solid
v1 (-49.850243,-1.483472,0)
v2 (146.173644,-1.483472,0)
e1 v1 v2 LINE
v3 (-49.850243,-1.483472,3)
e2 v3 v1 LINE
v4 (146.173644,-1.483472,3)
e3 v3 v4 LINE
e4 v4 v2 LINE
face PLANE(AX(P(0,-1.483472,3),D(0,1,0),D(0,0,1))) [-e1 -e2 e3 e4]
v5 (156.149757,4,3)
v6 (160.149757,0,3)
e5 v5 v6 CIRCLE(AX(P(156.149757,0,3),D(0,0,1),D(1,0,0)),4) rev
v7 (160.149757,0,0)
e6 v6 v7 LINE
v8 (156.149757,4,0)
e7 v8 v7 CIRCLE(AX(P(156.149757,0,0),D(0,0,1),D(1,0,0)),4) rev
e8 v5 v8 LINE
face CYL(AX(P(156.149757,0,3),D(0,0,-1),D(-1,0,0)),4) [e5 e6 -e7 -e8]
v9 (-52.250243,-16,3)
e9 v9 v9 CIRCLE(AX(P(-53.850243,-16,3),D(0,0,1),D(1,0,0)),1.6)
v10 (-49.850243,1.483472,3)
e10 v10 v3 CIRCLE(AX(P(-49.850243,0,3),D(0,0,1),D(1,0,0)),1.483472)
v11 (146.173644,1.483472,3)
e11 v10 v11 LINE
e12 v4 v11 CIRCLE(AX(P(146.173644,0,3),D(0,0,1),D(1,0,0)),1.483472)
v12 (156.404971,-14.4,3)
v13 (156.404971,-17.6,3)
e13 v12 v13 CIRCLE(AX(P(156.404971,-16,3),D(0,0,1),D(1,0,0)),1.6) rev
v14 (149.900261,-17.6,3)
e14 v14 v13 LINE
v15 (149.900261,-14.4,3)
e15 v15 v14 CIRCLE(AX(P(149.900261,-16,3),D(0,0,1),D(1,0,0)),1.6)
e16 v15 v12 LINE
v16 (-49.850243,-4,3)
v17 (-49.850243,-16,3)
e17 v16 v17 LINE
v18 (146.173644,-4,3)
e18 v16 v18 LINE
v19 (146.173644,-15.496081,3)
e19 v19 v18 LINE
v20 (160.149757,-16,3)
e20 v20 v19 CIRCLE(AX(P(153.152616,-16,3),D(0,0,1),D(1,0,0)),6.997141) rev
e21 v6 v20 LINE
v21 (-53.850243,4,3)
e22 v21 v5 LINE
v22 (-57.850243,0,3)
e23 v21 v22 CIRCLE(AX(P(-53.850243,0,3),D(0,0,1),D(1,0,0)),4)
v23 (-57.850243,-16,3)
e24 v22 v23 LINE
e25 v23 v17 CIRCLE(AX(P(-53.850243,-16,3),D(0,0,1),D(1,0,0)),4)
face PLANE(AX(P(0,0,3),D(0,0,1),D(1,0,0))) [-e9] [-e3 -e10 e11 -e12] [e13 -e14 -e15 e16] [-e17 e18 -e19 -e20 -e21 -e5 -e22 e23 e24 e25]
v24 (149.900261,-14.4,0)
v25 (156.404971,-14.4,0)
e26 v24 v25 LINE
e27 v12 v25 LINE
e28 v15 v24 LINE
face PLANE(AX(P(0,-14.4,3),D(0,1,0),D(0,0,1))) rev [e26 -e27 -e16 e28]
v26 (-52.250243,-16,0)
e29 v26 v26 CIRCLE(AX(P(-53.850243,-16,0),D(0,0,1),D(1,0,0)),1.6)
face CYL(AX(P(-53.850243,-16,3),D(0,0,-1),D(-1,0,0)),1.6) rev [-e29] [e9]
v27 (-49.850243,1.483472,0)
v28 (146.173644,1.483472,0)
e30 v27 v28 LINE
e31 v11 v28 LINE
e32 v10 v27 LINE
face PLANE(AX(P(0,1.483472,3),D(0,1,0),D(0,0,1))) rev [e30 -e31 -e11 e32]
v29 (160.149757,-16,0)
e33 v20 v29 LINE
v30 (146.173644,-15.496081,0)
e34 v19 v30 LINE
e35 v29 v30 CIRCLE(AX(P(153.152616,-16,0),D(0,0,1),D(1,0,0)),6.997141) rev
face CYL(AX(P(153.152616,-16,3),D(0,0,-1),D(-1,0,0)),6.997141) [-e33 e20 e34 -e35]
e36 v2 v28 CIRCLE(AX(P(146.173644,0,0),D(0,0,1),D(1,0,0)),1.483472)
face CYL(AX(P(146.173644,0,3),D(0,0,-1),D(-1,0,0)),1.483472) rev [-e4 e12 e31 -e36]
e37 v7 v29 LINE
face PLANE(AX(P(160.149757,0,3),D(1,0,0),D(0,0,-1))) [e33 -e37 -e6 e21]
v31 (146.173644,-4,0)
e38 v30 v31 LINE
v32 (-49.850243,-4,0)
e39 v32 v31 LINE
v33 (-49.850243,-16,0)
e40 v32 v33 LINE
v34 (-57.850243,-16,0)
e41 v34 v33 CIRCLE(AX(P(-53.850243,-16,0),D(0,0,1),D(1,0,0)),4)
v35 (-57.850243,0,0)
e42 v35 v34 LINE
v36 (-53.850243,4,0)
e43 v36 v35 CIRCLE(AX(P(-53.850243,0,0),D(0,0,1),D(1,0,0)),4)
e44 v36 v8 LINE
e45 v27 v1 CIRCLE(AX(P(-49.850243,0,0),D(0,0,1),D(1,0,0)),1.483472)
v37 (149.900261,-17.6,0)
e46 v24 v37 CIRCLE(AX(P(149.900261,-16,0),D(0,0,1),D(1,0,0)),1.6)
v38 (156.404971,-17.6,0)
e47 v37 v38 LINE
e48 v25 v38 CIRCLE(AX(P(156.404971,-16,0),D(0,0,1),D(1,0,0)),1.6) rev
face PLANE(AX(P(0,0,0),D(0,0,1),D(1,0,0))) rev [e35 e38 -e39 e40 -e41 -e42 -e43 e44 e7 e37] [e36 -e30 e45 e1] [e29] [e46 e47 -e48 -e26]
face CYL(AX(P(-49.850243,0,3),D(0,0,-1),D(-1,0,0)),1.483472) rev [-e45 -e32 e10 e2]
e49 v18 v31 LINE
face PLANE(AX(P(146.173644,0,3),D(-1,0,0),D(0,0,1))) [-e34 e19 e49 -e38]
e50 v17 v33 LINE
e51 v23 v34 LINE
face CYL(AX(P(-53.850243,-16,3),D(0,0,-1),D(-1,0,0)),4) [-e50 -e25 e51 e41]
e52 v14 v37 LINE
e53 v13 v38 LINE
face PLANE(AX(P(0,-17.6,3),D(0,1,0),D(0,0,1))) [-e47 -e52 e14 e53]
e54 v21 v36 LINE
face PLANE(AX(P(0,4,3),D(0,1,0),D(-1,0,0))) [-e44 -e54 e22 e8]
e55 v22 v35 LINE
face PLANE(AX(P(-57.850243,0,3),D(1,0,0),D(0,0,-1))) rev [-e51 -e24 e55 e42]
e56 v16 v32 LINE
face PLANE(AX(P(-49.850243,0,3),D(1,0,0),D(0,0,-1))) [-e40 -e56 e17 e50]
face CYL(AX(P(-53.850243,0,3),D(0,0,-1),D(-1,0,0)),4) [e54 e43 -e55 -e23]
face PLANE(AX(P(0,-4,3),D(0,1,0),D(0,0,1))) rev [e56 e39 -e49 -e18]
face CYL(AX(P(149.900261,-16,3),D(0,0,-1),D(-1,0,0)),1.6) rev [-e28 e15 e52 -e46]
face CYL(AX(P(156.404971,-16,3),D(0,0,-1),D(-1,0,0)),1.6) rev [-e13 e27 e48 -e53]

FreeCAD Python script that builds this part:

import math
import FreeCAD as App
import Part
import Sketcher
Q = App.Units.Quantity

doc = App.newDocument("Part")
body = doc.addObject("PartDesign::Body", "Body")

sketch1 = doc.addObject("Sketcher::SketchObject", "Sketch")
body.addObject(sketch1)
sketch1.AttachmentSupport = (doc.XY_Plane, [""])
sketch1.MapMode = "FlatFace"
sketch1.addGeometry([
    Part.LineSegment(App.Vector(156.1, 4, 0), App.Vector(-53.9, 4, 0)),
    Part.ArcOfCircle(Part.Circle(App.Vector(-53.9, 0, 0), App.Vector(0, 0, 1), 4), math.radians(90), math.radians(180)),
    Part.LineSegment(App.Vector(-57.9, 0, 0), App.Vector(-57.9, -16, 0)),
    Part.ArcOfCircle(Part.Circle(App.Vector(-53.9, -16, 0), App.Vector(0, 0, 1), 4), math.radians(180), math.radians(360)),
    Part.LineSegment(App.Vector(-49.9, -16, 0), App.Vector(-49.9, -4, 0)),
    Part.LineSegment(App.Vector(-49.9, -4, 0), App.Vector(146.2, -4, 0)),
    Part.LineSegment(App.Vector(146.2, -4, 0), App.Vector(146.2, -15.5, 0)),
    Part.ArcOfCircle(Part.Circle(App.Vector(153.2, -16, 0), App.Vector(0, 0, 1), 7), math.radians(176), math.radians(360)),
    Part.LineSegment(App.Vector(160.1, -16, 0), App.Vector(160.1, 0, 0)),
    Part.ArcOfCircle(Part.Circle(App.Vector(156.1, 0, 0), App.Vector(0, 0, 1), 4), math.radians(0), math.radians(90)),
    Part.LineSegment(App.Vector(149.9, -14.4, 0), App.Vector(156.4, -14.4, 0)),
    Part.ArcOfCircle(Part.Circle(App.Vector(156.4, -16, 0), App.Vector(0, 0, 1), 1.6), math.radians(-90), math.radians(90)),
    Part.LineSegment(App.Vector(156.4, -17.6, 0), App.Vector(149.9, -17.6, 0)),
    Part.ArcOfCircle(Part.Circle(App.Vector(149.9, -16, 0), App.Vector(0, 0, 1), 1.6), math.radians(90), math.radians(270)),
    Part.Circle(App.Vector(-53.9, -16, 0), App.Vector(0, 0, 1), 1.6),
    Part.LineSegment(App.Vector(-49.9, 1.5, 0), App.Vector(146.2, 1.5, 0)),
    Part.ArcOfCircle(Part.Circle(App.Vector(146.2, 0, 0), App.Vector(0, 0, 1), 1.5), math.radians(-90), math.radians(90)),
    Part.LineSegment(App.Vector(146.2, -1.5, 0), App.Vector(-49.9, -1.5, 0)),
    Part.ArcOfCircle(Part.Circle(App.Vector(-49.9, 0, 0), App.Vector(0, 0, 1), 1.5), math.radians(90), math.radians(270)),
], False)
sketch1.addConstraint([
    Sketcher.Constraint("Tangent", 0, 2, 1, 1),
    Sketcher.Constraint("Tangent", 1, 2, 2, 1),
    Sketcher.Constraint("Tangent", 2, 2, 3, 1),
    Sketcher.Constraint("Tangent", 3, 2, 4, 1),
    Sketcher.Constraint("Coincident", 4, 2, 5, 1),
    Sketcher.Constraint("Coincident", 5, 2, 6, 1),
    Sketcher.Constraint("Coincident", 6, 2, 7, 1),
    Sketcher.Constraint("Tangent", 7, 2, 8, 1),
    Sketcher.Constraint("Tangent", 8, 2, 9, 1),
    Sketcher.Constraint("Tangent", 9, 2, 0, 1),
    Sketcher.Constraint("Tangent", 10, 2, 11, 2),
    Sketcher.Constraint("Tangent", 11, 1, 12, 1),
    Sketcher.Constraint("Tangent", 12, 2, 13, 2),
    Sketcher.Constraint("Tangent", 13, 1, 10, 1),
    Sketcher.Constraint("Tangent", 15, 2, 16, 2),
    Sketcher.Constraint("Tangent", 16, 1, 17, 1),
    Sketcher.Constraint("Tangent", 17, 2, 18, 2),
    Sketcher.Constraint("Tangent", 18, 1, 15, 1),
    Sketcher.Constraint("Horizontal", 0),
    Sketcher.Constraint("Vertical", 2),
    Sketcher.Constraint("Vertical", 4),
    Sketcher.Constraint("Horizontal", 5),
    Sketcher.Constraint("Vertical", 6),
    Sketcher.Constraint("Vertical", 8),
    Sketcher.Constraint("Horizontal", 10),
    Sketcher.Constraint("Horizontal", 12),
    Sketcher.Constraint("Horizontal", 15),
    Sketcher.Constraint("Horizontal", 17),
    Sketcher.Constraint("Coincident", 14, 3, 3, 3),
    Sketcher.Constraint("Equal", 1, 3),
    Sketcher.Constraint("Equal", 3, 9),
    Sketcher.Constraint("Equal", 13, 14),
    Sketcher.Constraint("PointOnObject", 1, 3, -1),
    Sketcher.Constraint("PointOnObject", 16, 3, -1),
    Sketcher.Constraint("Horizontal", 3, 3, 7, 3),
    Sketcher.Constraint("Horizontal", 7, 3, 11, 3),
    Sketcher.Constraint("Vertical", 18, 3, 3, 2),
    Sketcher.Constraint("Vertical", 16, 3, 5, 2),
    Sketcher.Constraint("Radius", 1, Q("4 mm")),
    Sketcher.Constraint("Diameter", 14, Q("3.2 mm")),
    Sketcher.Constraint("DistanceX", 0, 2, 0, 1, Q("210 mm")),
    Sketcher.Constraint("DistanceY", 2, 2, 2, 1, Q("16 mm")),
    Sketcher.Constraint("DistanceY", 4, 1, 4, 2, Q("12 mm")),
    Sketcher.Constraint("Radius", 7, Q("6.997141 mm")),
    Sketcher.Constraint("Radius", 16, Q("1.483472 mm")),
    Sketcher.Constraint("DistanceX", 10, 1, 10, 2, Q("6.50471 mm")),
    Sketcher.Constraint("DistanceY", 6, 2, 6, 1, Q("11.496081 mm")),
    Sketcher.Constraint("DistanceX", -1, 1, 11, 3, Q("156.404971 mm")),
    Sketcher.Constraint("DistanceX", 1, 3, -1, 1, Q("53.850243 mm")),
])
pad1 = doc.addObject("PartDesign::Pad", "Pad")
body.addObject(pad1)
pad1.Profile = sketch1
pad1.Length = 3

doc.recompute()
